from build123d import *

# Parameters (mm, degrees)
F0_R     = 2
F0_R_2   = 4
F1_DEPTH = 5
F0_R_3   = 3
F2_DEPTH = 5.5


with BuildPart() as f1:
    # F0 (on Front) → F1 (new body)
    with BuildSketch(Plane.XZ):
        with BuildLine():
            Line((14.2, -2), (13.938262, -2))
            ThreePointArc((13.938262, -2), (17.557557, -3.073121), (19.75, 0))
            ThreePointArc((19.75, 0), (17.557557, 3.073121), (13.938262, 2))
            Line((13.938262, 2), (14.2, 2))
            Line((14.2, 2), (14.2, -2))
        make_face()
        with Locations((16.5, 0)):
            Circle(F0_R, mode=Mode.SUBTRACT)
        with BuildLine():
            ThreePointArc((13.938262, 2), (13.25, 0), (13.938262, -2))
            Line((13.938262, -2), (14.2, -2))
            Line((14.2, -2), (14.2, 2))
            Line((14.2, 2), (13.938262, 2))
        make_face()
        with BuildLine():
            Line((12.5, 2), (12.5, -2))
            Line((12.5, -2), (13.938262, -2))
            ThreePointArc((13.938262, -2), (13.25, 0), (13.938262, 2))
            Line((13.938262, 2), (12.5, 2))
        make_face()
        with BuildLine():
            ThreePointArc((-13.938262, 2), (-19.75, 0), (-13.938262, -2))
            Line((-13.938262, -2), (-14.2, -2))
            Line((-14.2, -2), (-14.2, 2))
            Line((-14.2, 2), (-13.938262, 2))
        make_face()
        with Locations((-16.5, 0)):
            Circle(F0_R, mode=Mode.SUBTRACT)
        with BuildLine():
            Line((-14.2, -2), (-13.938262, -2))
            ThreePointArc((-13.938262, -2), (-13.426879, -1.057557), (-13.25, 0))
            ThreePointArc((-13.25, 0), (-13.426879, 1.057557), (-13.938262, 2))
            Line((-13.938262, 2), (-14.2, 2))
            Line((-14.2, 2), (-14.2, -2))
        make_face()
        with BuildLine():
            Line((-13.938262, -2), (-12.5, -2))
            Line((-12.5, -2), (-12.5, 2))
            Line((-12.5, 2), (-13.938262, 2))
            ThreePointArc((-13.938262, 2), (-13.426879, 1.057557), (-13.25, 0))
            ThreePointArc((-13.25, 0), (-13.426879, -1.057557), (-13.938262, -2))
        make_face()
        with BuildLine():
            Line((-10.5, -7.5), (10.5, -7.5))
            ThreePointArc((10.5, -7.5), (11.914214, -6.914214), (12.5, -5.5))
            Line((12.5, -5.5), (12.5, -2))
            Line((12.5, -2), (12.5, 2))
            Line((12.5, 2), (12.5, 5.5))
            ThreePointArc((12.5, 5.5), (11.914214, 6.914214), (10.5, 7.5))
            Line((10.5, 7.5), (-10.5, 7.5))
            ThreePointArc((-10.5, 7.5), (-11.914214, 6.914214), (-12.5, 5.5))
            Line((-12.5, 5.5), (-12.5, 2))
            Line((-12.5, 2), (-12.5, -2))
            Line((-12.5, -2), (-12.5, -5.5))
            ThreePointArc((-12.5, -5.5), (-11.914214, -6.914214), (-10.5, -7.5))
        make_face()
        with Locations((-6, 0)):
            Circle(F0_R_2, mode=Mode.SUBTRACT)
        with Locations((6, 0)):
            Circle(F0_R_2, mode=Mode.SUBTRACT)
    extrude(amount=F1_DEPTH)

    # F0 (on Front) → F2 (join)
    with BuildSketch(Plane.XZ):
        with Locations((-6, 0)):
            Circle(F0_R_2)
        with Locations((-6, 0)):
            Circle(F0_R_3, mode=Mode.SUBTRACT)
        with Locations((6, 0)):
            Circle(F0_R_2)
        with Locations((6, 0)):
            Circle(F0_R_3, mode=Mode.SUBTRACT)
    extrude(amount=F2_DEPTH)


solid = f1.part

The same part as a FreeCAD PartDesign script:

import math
import FreeCAD as App
import Part
import Sketcher
from FreeCAD import Vector

doc = App.newDocument("Part")
body = doc.addObject("PartDesign::Body", "Body")

# Sketch on XZ plane
sketch1 = doc.addObject("Sketcher::SketchObject", "Sketch")
body.addObject(sketch1)
sketch1.AttachmentSupport = (doc.XZ_Plane, [""])
sketch1.MapMode = "FlatFace"
sketch1.addGeometry(Part.ArcOfCircle(Part.Circle(Vector(16.5, 0, 0), Vector(0, 0, 1), 3.3), math.radians(-142), math.radians(0)), False)
sketch1.addGeometry(Part.ArcOfCircle(Part.Circle(Vector(16.5, 0, 0), Vector(0, 0, 1), 3.3), math.radians(0), math.radians(142)), False)
sketch1.addGeometry(Part.LineSegment(Vector(13.9, 2, 0), Vector(12.5, 2, 0)), False)
sketch1.addGeometry(Part.LineSegment(Vector(12.5, 2, 0), Vector(12.5, 5.5, 0)), False)
sketch1.addGeometry(Part.ArcOfCircle(Part.Circle(Vector(10.5, 5.5, 0), Vector(0, 0, 1), 2), math.radians(0), math.radians(90)), False)
sketch1.addGeometry(Part.LineSegment(Vector(10.5, 7.5, 0), Vector(-10.5, 7.5, 0)), False)
sketch1.addGeometry(Part.ArcOfCircle(Part.Circle(Vector(-10.5, 5.5, 0), Vector(0, 0, 1), 2), math.radians(90), math.radians(180)), False)
sketch1.addGeometry(Part.LineSegment(Vector(-12.5, 5.5, 0), Vector(-12.5, 2, 0)), False)
sketch1.addGeometry(Part.LineSegment(Vector(-12.5, 2, 0), Vector(-13.9, 2, 0)), False)
sketch1.addGeometry(Part.ArcOfCircle(Part.Circle(Vector(-16.5, 0, 0), Vector(0, 0, 1), 3.3), math.radians(38), math.radians(322)), False)
sketch1.addGeometry(Part.LineSegment(Vector(-13.9, -2, 0), Vector(-12.5, -2, 0)), False)
sketch1.addGeometry(Part.LineSegment(Vector(-12.5, -2, 0), Vector(-12.5, -5.5, 0)), False)
sketch1.addGeometry(Part.ArcOfCircle(Part.Circle(Vector(-10.5, -5.5, 0), Vector(0, 0, 1), 2), math.radians(180), math.radians(270)), False)
sketch1.addGeometry(Part.LineSegment(Vector(-10.5, -7.5, 0), Vector(10.5, -7.5, 0)), False)
sketch1.addGeometry(Part.ArcOfCircle(Part.Circle(Vector(10.5, -5.5, 0), Vector(0, 0, 1), 2), math.radians(-90), math.radians(0)), False)
sketch1.addGeometry(Part.LineSegment(Vector(12.5, -5.5, 0), Vector(12.5, -2, 0)), False)
sketch1.addGeometry(Part.LineSegment(Vector(12.5, -2, 0), Vector(13.9, -2, 0)), False)
sketch1.addGeometry(Part.Circle(Vector(-16.5, 0, 0), Vector(0, 0, 1), 2), False)
sketch1.addGeometry(Part.Circle(Vector(-6, 0, 0), Vector(0, 0, 1), 4), False)
sketch1.addGeometry(Part.Circle(Vector(6, 0, 0), Vector(0, 0, 1), 4), False)
sketch1.addGeometry(Part.Circle(Vector(16.5, 0, 0), Vector(0, 0, 1), 2), False)
sketch1.addConstraint(Sketcher.Constraint("Tangent", 0, 2, 1, 1))
sketch1.addConstraint(Sketcher.Constraint("Coincident", 1, 2, 2, 1))
sketch1.addConstraint(Sketcher.Constraint("Coincident", 2, 2, 3, 1))
sketch1.addConstraint(Sketcher.Constraint("Tangent", 3, 2, 4, 1))
sketch1.addConstraint(Sketcher.Constraint("Tangent", 4, 2, 5, 1))
sketch1.addConstraint(Sketcher.Constraint("Tangent", 5, 2, 6, 1))
sketch1.addConstraint(Sketcher.Constraint("Tangent", 6, 2, 7, 1))
sketch1.addConstraint(Sketcher.Constraint("Coincident", 7, 2, 8, 1))
sketch1.addConstraint(Sketcher.Constraint("Coincident", 8, 2, 9, 1))
sketch1.addConstraint(Sketcher.Constraint("Coincident", 9, 2, 10, 1))
sketch1.addConstraint(Sketcher.Constraint("Coincident", 10, 2, 11, 1))
sketch1.addConstraint(Sketcher.Constraint("Tangent", 11, 2, 12, 1))
sketch1.addConstraint(Sketcher.Constraint("Tangent", 12, 2, 13, 1))
sketch1.addConstraint(Sketcher.Constraint("Tangent", 13, 2, 14, 1))
sketch1.addConstraint(Sketcher.Constraint("Tangent", 14, 2, 15, 1))
sketch1.addConstraint(Sketcher.Constraint("Coincident", 15, 2, 16, 1))
sketch1.addConstraint(Sketcher.Constraint("Coincident", 16, 2, 0, 1))
sketch1.addConstraint(Sketcher.Constraint("Horizontal", 2))
sketch1.addConstraint(Sketcher.Constraint("Vertical", 3))
sketch1.addConstraint(Sketcher.Constraint("Horizontal", 5))
sketch1.addConstraint(Sketcher.Constraint("Vertical", 7))
sketch1.addConstraint(Sketcher.Constraint("Horizontal", 8))
sketch1.addConstraint(Sketcher.Constraint("Horizontal", 10))
sketch1.addConstraint(Sketcher.Constraint("Vertical", 11))
sketch1.addConstraint(Sketcher.Constraint("Horizontal", 13))
sketch1.addConstraint(Sketcher.Constraint("Vertical", 15))
sketch1.addConstraint(Sketcher.Constraint("Horizontal", 16))
sketch1.addConstraint(Sketcher.Constraint("Coincident", 17, 3, 9, 3))
sketch1.addConstraint(Sketcher.Constraint("Coincident", 20, 3, 0, 3))
sketch1.addConstraint(Sketcher.Constraint("Equal", 0, 1))
sketch1.addConstraint(Sketcher.Constraint("Equal", 4, 6))
sketch1.addConstraint(Sketcher.Constraint("Equal", 1, 9))
sketch1.addConstraint(Sketcher.Constraint("Equal", 6, 12))
sketch1.addConstraint(Sketcher.Constraint("Equal", 12, 14))
sketch1.addConstraint(Sketcher.Constraint("Equal", 14, 17))
sketch1.addConstraint(Sketcher.Constraint("Equal", 18, 19))
sketch1.addConstraint(Sketcher.Constraint("Equal", 17, 20))
sketch1.addConstraint(Sketcher.Constraint("Symmetric", 0, 3, 9, 3, -1, 1))
sketch1.addConstraint(Sketcher.Constraint("Symmetric", 4, 3, 12, 3, -1, 1))
sketch1.addConstraint(Sketcher.Constraint("Symmetric", 18, 3, 19, 3, -1, 1))
sketch1.addConstraint(Sketcher.Constraint("Symmetric", 7, 2, 15, 2, -1, 1))
sketch1.addConstraint(Sketcher.Constraint("Symmetric", 2, 2, 7, 2, -2))
sketch1.addConstraint(Sketcher.Constraint("Symmetric", 9, 2, 16, 2, -2))
sketch1.addConstraint(Sketcher.Constraint("PointOnObject", 18, 3, -1))
sketch1.addConstraint(Sketcher.Constraint("PointOnObject", 0, 2, -1))
sketch1.addConstraint(Sketcher.Constraint("Diameter", 17, 4.0))
sketch1.addConstraint(Sketcher.Constraint("Diameter", 18, 8.0))
sketch1.addConstraint(Sketcher.Constraint("DistanceX", 5, 2, 5, 1, 21.0))
sketch1.addConstraint(Sketcher.Constraint("Radius", 0, 3.25))
sketch1.addConstraint(Sketcher.Constraint("DistanceY", 3, 1, 3, 2, 3.5))
sketch1.addConstraint(Sketcher.Constraint("DistanceX", 18, 3, -1, 1, 6.0))
sketch1.addConstraint(Sketcher.Constraint("DistanceY", -1, 1, 1, 2, 2.0))
sketch1.addConstraint(Sketcher.Constraint("DistanceX", 4, 3, 0, 3, 5.999998))
pad1 = doc.addObject("PartDesign::Pad", "Pad")
body.addObject(pad1)
pad1.Profile = sketch1
pad1.Length = 5

# Sketch on XZ plane
sketch2 = doc.addObject("Sketcher::SketchObject", "Sketch001")
body.addObject(sketch2)
sketch2.AttachmentSupport = (doc.XZ_Plane, [""])
sketch2.MapMode = "FlatFace"
sketch2.addGeometry(Part.Circle(Vector(-6, 0, 0), Vector(0, 0, 1), 4), False)
sketch2.addGeometry(Part.Circle(Vector(-6, 0, 0), Vector(0, 0, 1), 3), False)
sketch2.addGeometry(Part.Circle(Vector(6, 0, 0), Vector(0, 0, 1), 4), False)
sketch2.addGeometry(Part.Circle(Vector(6, 0, 0), Vector(0, 0, 1), 3), False)
sketch2.addConstraint(Sketcher.Constraint("Coincident", 1, 3, 0, 3))
sketch2.addConstraint(Sketcher.Constraint("Coincident", 3, 3, 2, 3))
sketch2.addConstraint(Sketcher.Constraint("Equal", 0, 2))
sketch2.addConstraint(Sketcher.Constraint("Equal", 1, 3))
sketch2.addConstraint(Sketcher.Constraint("Symmetric", 0, 3, 2, 3, -1, 1))
sketch2.addConstraint(Sketcher.Constraint("PointOnObject", 0, 3, -1))
sketch2.addConstraint(Sketcher.Constraint("Diameter", 0, 8.0))
sketch2.addConstraint(Sketcher.Constraint("Diameter", 1, 6.0))
sketch2.addConstraint(Sketcher.Constraint("DistanceX", 0, 3, -1, 1, 6.0))
pad2 = doc.addObject("PartDesign::Pad", "Pad001")
body.addObject(pad2)
pad2.Profile = sketch2
pad2.Length = 5.5

doc.recompute()
